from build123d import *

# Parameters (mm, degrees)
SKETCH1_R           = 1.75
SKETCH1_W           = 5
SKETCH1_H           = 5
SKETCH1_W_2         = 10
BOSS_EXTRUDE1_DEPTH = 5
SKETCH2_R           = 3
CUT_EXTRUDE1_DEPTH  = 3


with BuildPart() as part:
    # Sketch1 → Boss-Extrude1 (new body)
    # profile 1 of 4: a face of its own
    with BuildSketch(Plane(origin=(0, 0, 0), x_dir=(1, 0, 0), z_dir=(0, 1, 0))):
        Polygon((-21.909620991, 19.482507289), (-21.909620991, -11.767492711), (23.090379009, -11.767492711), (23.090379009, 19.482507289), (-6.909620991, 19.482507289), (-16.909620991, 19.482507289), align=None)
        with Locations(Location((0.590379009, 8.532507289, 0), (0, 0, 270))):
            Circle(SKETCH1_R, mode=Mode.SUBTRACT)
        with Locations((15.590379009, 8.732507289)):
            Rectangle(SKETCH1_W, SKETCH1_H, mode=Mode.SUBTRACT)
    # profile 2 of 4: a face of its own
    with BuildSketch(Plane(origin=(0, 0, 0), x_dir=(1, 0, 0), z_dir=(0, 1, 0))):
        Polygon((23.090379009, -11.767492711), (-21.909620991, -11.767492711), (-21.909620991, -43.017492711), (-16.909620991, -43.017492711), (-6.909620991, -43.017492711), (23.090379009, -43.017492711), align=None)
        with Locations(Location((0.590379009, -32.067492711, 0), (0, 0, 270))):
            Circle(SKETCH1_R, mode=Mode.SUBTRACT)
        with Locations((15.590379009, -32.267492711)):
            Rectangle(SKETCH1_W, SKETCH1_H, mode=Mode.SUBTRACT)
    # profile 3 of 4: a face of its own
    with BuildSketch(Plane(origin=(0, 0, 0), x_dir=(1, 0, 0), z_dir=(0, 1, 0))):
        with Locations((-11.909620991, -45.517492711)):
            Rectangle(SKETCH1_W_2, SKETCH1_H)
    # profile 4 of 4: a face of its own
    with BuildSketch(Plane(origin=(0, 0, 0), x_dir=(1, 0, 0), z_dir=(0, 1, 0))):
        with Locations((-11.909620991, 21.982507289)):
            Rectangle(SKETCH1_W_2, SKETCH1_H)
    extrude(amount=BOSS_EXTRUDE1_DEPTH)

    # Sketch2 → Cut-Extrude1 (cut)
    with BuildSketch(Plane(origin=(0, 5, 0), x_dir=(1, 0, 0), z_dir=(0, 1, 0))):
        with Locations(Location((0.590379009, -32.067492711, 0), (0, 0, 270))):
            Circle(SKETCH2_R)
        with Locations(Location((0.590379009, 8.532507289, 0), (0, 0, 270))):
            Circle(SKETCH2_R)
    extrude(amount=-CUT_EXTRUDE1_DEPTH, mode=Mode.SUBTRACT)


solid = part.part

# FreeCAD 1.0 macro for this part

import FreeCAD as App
import Part
import Sketcher

V = App.Vector


def add_polygon(sketch, points):
    """Adds a closed chain of lines whose ends are joined by coincident constraints."""
    first, n = sketch.GeometryCount, len(points)
    for a, b in zip(points, points[1:] + points[:1]):
        sketch.addGeometry(Part.LineSegment(App.Vector(*a, 0), App.Vector(*b, 0)), False)
    for i in range(n):
        sketch.addConstraint(Sketcher.Constraint("Coincident", first + i, 2, first + (i + 1) % n, 1))

doc = App.newDocument("Part")
body = doc.addObject("PartDesign::Body", "Body")

# Sketch on XZ plane
sketch1 = body.newObject("Sketcher::SketchObject", "Sketch")
sketch1.AttachmentSupport = (doc.getObject("XZ_Plane"), [""])
sketch1.MapMode = "FlatFace"
add_polygon(sketch1, [(-21.9, -19.5), (-21.9, 43), (-16.9, 43), (-16.9, 48), (-6.9, 48), (-6.9, 43), (23.1, 43), (23.1, -19.5), (-6.9, -19.5), (-6.9, -24.5), (-16.9, -24.5), (-16.9, -19.5)])  # lines 0-11
sketch1.addGeometry(Part.Circle(V(0.6, -8.5, 0), V(0, 0, 1), 1.8), False)  # 12
add_polygon(sketch1, [(18.1, -6.2), (13.1, -6.2), (13.1, -11.2), (18.1, -11.2)])  # lines 13-16
add_polygon(sketch1, [(13.1, 34.8), (13.1, 29.8), (18.1, 29.8), (18.1, 34.8)])  # lines 17-20
sketch1.addGeometry(Part.Circle(V(0.6, 32.1, 0), V(0, 0, 1), 1.8), False)  # 21
sketch1.addConstraint([
    Sketcher.Constraint("Vertical", 0),
    Sketcher.Constraint("Horizontal", 1),
    Sketcher.Constraint("Vertical", 2),
    Sketcher.Constraint("Horizontal", 3),
    Sketcher.Constraint("Vertical", 4),
    Sketcher.Constraint("Horizontal", 5),
    Sketcher.Constraint("Vertical", 6),
    Sketcher.Constraint("Horizontal", 7),
    Sketcher.Constraint("Vertical", 8),
    Sketcher.Constraint("Horizontal", 9),
    Sketcher.Constraint("Vertical", 10),
    Sketcher.Constraint("Horizontal", 11),
    Sketcher.Constraint("Horizontal", 13),
    Sketcher.Constraint("Vertical", 14),
    Sketcher.Constraint("Horizontal", 15),
    Sketcher.Constraint("Vertical", 16),
    Sketcher.Constraint("Vertical", 17),
    Sketcher.Constraint("Horizontal", 18),
    Sketcher.Constraint("Vertical", 19),
    Sketcher.Constraint("Horizontal", 20),
    Sketcher.Constraint("Equal", 12, 21),
    Sketcher.Constraint("Horizontal", 1, 2, 4, 2),
    Sketcher.Constraint("Horizontal", 7, 2, 10, 2),
    Sketcher.Constraint("Vertical", 12, 3, 21, 3),
    Sketcher.Constraint("Vertical", 4, 2, 7, 2),
    Sketcher.Constraint("Vertical", 2, 2, 9, 2),
    Sketcher.Constraint("Vertical", 14, 2, 17, 2),
    Sketcher.Constraint("Vertical", 16, 2, 18, 2),
    Sketcher.Constraint("Equal", 11, 13),
    Sketcher.Constraint("Equal", 20, 2),
    Sketcher.Constraint("Equal", 4, 8),
    Sketcher.Constraint("Equal", 10, 14),
    Sketcher.Constraint("Equal", 16, 17),
    Sketcher.Constraint("Diameter", 12, 3.5),
    Sketcher.Constraint("DistanceX", 1, 1, 1, 2, 5.0),
    Sketcher.Constraint("DistanceX", 3, 1, 3, 2, 10.0),
    Sketcher.Constraint("DistanceX", 5, 1, 5, 2, 30.0),
    Sketcher.Constraint("DistanceY", 0, 1, 0, 2, 62.5),
    Sketcher.Constraint("DistanceX", 13, 2, 6, 2, 10.0),
    Sketcher.Constraint("DistanceY", 12, 3, 21, 3, 40.6),
    Sketcher.Constraint("DistanceX", 0, 2, 21, 3, 22.5),
    Sketcher.Constraint("DistanceY", 12, 3, 13, 2, 2.3),
    Sketcher.Constraint("DistanceY", 17, 2, 21, 3, 2.3),
    Sketcher.Constraint("DistanceY", 21, 3, 0, 2, 10.95),
    Sketcher.Constraint("DistanceX", -1, 1, 12, 3, 0.590379),
    Sketcher.Constraint("DistanceY", 12, 3, -1, 1, 8.532507),
])
pad1 = body.newObject("PartDesign::Pad", "Pad")
pad1.Profile = sketch1
pad1.Length = 5
pad1.Reversed = True

# Sketch on XZ plane
sketch2 = body.newObject("Sketcher::SketchObject", "Sketch001")
sketch2.AttachmentSupport = (doc.getObject("XZ_Plane"), [""])
sketch2.MapMode = "FlatFace"
sketch2.AttachmentOffset = App.Placement(V(0, 0, -5), App.Rotation())
sketch2.addGeometry([
    Part.Circle(V(0.6, 32.1, 0), V(0, 0, 1), 3),
    Part.Circle(V(0.6, -8.5, 0), V(0, 0, 1), 3),
], False)
sketch2.addConstraint([
    Sketcher.Constraint("Equal", 0, 1),
    Sketcher.Constraint("Vertical", 0, 3, 1, 3),
    Sketcher.Constraint("Diameter", 0, 6.0),
    Sketcher.Constraint("DistanceY", 1, 3, 0, 3, 40.6),
    Sketcher.Constraint("DistanceX", -1, 1, 0, 3, 0.590379),
    Sketcher.Constraint("DistanceY", -1, 1, 0, 3, 32.067493),
])
pocket1 = body.newObject("PartDesign::Pocket", "Pocket")
pocket1.Profile = sketch2
pocket1.Length = 3
pocket1.Reversed = True

doc.recompute()
